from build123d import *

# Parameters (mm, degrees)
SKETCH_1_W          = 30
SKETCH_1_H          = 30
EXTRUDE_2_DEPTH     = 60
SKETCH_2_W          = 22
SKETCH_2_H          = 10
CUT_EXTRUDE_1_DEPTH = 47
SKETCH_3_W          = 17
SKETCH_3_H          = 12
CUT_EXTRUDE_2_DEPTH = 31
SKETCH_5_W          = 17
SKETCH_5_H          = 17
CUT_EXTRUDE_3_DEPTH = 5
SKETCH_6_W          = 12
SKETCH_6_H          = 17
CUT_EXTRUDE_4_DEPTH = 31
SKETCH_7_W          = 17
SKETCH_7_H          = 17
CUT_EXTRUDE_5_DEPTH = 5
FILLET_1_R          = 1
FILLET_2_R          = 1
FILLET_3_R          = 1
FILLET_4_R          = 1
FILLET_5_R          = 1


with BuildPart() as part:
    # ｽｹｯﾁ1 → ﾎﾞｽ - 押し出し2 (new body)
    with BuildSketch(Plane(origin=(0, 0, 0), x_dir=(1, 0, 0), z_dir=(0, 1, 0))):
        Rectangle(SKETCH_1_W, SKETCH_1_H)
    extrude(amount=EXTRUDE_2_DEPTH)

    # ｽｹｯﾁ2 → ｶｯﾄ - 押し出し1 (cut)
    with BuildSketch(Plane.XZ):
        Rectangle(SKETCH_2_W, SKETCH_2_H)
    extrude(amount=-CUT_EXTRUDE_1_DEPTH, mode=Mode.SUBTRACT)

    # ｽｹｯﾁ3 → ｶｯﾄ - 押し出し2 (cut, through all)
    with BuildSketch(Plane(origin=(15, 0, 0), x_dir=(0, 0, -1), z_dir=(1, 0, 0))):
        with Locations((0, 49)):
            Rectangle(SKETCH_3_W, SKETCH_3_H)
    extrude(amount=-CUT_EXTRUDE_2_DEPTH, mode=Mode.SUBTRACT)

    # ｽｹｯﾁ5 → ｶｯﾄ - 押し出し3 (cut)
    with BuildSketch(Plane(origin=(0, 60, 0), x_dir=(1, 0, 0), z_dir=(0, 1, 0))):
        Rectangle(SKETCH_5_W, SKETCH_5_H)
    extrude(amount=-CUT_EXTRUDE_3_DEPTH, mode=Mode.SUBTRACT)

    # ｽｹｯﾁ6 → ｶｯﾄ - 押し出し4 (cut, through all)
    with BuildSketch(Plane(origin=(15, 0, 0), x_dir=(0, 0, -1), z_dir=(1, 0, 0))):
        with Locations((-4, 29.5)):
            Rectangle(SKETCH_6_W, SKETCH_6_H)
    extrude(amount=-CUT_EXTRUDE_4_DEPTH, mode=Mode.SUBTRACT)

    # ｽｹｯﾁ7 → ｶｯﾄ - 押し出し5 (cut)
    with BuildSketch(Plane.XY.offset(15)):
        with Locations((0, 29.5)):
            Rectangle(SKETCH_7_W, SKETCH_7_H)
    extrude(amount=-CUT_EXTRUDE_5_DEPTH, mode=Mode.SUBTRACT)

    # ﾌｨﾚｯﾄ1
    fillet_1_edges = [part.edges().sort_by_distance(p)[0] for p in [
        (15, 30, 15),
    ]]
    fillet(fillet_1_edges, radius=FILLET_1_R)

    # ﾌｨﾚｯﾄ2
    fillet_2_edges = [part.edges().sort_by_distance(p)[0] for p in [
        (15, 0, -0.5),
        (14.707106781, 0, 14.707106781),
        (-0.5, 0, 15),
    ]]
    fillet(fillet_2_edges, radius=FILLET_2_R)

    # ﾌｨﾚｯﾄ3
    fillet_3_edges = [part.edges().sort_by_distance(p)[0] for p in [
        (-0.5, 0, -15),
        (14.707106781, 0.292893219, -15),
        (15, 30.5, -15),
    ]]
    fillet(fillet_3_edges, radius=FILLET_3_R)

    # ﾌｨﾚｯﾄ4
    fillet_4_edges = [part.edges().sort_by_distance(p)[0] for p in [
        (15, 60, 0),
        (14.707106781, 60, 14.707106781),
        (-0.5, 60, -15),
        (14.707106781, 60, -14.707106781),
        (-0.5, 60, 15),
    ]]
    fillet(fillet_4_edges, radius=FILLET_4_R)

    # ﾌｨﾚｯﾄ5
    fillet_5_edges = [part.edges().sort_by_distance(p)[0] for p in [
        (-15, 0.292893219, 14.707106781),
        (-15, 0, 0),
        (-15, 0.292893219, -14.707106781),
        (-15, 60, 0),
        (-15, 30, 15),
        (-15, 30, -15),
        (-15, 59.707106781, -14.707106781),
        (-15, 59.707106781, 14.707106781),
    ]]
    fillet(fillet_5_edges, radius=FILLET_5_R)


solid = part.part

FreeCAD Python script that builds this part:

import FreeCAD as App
import Part
import Sketcher
from FreeCAD import Vector
Q = App.Units.Quantity


def edges_at(feature, points):
    """Names of the edges that pass closest to the given points."""
    edges = feature.Shape.Edges
    near = lambda p: min(range(len(edges)), key=lambda i: edges[i].distToShape(Part.Vertex(*p))[0])
    return sorted({f"Edge{near(p) + 1}" for p in points})

doc = App.newDocument("Part")
body = doc.addObject("PartDesign::Body", "Body")

sketch1 = body.newObject("Sketcher::SketchObject", "Sketch")
sketch1.AttachmentSupport = (doc.getObject("XZ_Plane"), [""])
sketch1.MapMode = "FlatFace"
sketch1.addGeometry([
    Part.LineSegment(Vector(-15, -15, 0), Vector(-15, 15, 0)),
    Part.LineSegment(Vector(-15, 15, 0), Vector(15, 15, 0)),
    Part.LineSegment(Vector(15, 15, 0), Vector(15, -15, 0)),
    Part.LineSegment(Vector(15, -15, 0), Vector(-15, -15, 0)),
], False)
sketch1.addConstraint([
    Sketcher.Constraint("Coincident", 0, 2, 1, 1),
    Sketcher.Constraint("Coincident", 1, 2, 2, 1),
    Sketcher.Constraint("Coincident", 2, 2, 3, 1),
    Sketcher.Constraint("Coincident", 3, 2, 0, 1),
    Sketcher.Constraint("Vertical", 0),
    Sketcher.Constraint("Horizontal", 1),
    Sketcher.Constraint("Vertical", 2),
    Sketcher.Constraint("Horizontal", 3),
    Sketcher.Constraint("Symmetric", 0, 2, 2, 2, -1, 1),
    Sketcher.Constraint("Equal", 3, 0),
    Sketcher.Constraint("DistanceX", 1, 1, 1, 2, Q("30 mm")),
])
pad1 = body.newObject("PartDesign::Pad", "Pad")
pad1.Profile = sketch1
pad1.Length = 60
pad1.Reversed = True

sketch2 = body.newObject("Sketcher::SketchObject", "Sketch001")
sketch2.AttachmentSupport = (doc.getObject("XZ_Plane"), [""])
sketch2.MapMode = "FlatFace"
sketch2.addGeometry([
    Part.LineSegment(Vector(-11, 5, 0), Vector(-11, -5, 0)),
    Part.LineSegment(Vector(-11, -5, 0), Vector(11, -5, 0)),
    Part.LineSegment(Vector(11, -5, 0), Vector(11, 5, 0)),
    Part.LineSegment(Vector(11, 5, 0), Vector(-11, 5, 0)),
], False)
sketch2.addConstraint([
    Sketcher.Constraint("Coincident", 0, 2, 1, 1),
    Sketcher.Constraint("Coincident", 1, 2, 2, 1),
    Sketcher.Constraint("Coincident", 2, 2, 3, 1),
    Sketcher.Constraint("Coincident", 3, 2, 0, 1),
    Sketcher.Constraint("Vertical", 0),
    Sketcher.Constraint("Horizontal", 1),
    Sketcher.Constraint("Vertical", 2),
    Sketcher.Constraint("Horizontal", 3),
    Sketcher.Constraint("Symmetric", 0, 2, 2, 2, -1, 1),
    Sketcher.Constraint("DistanceX", 1, 1, 1, 2, Q("22 mm")),
    Sketcher.Constraint("DistanceY", 0, 2, 0, 1, Q("10 mm")),
])
pocket1 = body.newObject("PartDesign::Pocket", "Pocket")
pocket1.Profile = sketch2
pocket1.Length = 47

sketch3 = body.newObject("Sketcher::SketchObject", "Sketch002")
sketch3.AttachmentSupport = (doc.getObject("YZ_Plane"), [""])
sketch3.MapMode = "FlatFace"
sketch3.AttachmentOffset = App.Placement(Vector(0, 0, 15), App.Rotation())
sketch3.addGeometry([
    Part.LineSegment(Vector(55, 8, 0), Vector(43, 8, 0)),
    Part.LineSegment(Vector(43, 8, 0), Vector(43, -8, 0)),
    Part.LineSegment(Vector(43, -8, 0), Vector(55, -8, 0)),
    Part.LineSegment(Vector(55, -8, 0), Vector(55, 8, 0)),
], False)
sketch3.addConstraint([
    Sketcher.Constraint("Coincident", 0, 2, 1, 1),
    Sketcher.Constraint("Coincident", 1, 2, 2, 1),
    Sketcher.Constraint("Coincident", 2, 2, 3, 1),
    Sketcher.Constraint("Coincident", 3, 2, 0, 1),
    Sketcher.Constraint("Horizontal", 0),
    Sketcher.Constraint("Vertical", 1),
    Sketcher.Constraint("Horizontal", 2),
    Sketcher.Constraint("Vertical", 3),
    Sketcher.Constraint("DistanceX", 0, 2, 0, 1, Q("12 mm")),
    Sketcher.Constraint("DistanceY", 1, 2, 1, 1, Q("17 mm")),
    Sketcher.Constraint("DistanceX", -1, 1, 0, 2, Q("43 mm")),
    Sketcher.Constraint("DistanceY", -1, 1, 0, 2, Q("8.5 mm")),
])
pocket2 = body.newObject("PartDesign::Pocket", "Pocket001")
pocket2.Profile = sketch3
pocket2.Type = "ThroughAll"

sketch4 = body.newObject("Sketcher::SketchObject", "Sketch003")
sketch4.AttachmentSupport = (doc.getObject("XZ_Plane"), [""])
sketch4.MapMode = "FlatFace"
sketch4.AttachmentOffset = App.Placement(Vector(0, 0, -60), App.Rotation())
sketch4.addGeometry([
    Part.LineSegment(Vector(-8, -8, 0), Vector(-8, 8, 0)),
    Part.LineSegment(Vector(-8, 8, 0), Vector(8, 8, 0)),
    Part.LineSegment(Vector(8, 8, 0), Vector(8, -8, 0)),
    Part.LineSegment(Vector(8, -8, 0), Vector(-8, -8, 0)),
], False)
sketch4.addConstraint([
    Sketcher.Constraint("Coincident", 0, 2, 1, 1),
    Sketcher.Constraint("Coincident", 1, 2, 2, 1),
    Sketcher.Constraint("Coincident", 2, 2, 3, 1),
    Sketcher.Constraint("Coincident", 3, 2, 0, 1),
    Sketcher.Constraint("Vertical", 0),
    Sketcher.Constraint("Horizontal", 1),
    Sketcher.Constraint("Vertical", 2),
    Sketcher.Constraint("Horizontal", 3),
    Sketcher.Constraint("Symmetric", 0, 2, 2, 2, -1, 1),
    Sketcher.Constraint("Equal", 3, 0),
    Sketcher.Constraint("DistanceX", 1, 1, 1, 2, Q("17 mm")),
])
pocket3 = body.newObject("PartDesign::Pocket", "Pocket002")
pocket3.Profile = sketch4
pocket3.Length = 5
pocket3.Reversed = True

sketch5 = body.newObject("Sketcher::SketchObject", "Sketch004")
sketch5.AttachmentSupport = (doc.getObject("YZ_Plane"), [""])
sketch5.MapMode = "FlatFace"
sketch5.AttachmentOffset = App.Placement(Vector(0, 0, 15), App.Rotation())
sketch5.addGeometry([
    Part.LineSegment(Vector(38, 10, 0), Vector(21, 10, 0)),
    Part.LineSegment(Vector(21, 10, 0), Vector(21, -2, 0)),
    Part.LineSegment(Vector(21, -2, 0), Vector(38, -2, 0)),
    Part.LineSegment(Vector(38, -2, 0), Vector(38, 10, 0)),
], False)
sketch5.addConstraint([
    Sketcher.Constraint("Coincident", 0, 2, 1, 1),
    Sketcher.Constraint("Coincident", 1, 2, 2, 1),
    Sketcher.Constraint("Coincident", 2, 2, 3, 1),
    Sketcher.Constraint("Coincident", 3, 2, 0, 1),
    Sketcher.Constraint("Horizontal", 0),
    Sketcher.Constraint("Vertical", 1),
    Sketcher.Constraint("Horizontal", 2),
    Sketcher.Constraint("Vertical", 3),
    Sketcher.Constraint("DistanceX", 0, 2, 0, 1, Q("17 mm")),
    Sketcher.Constraint("DistanceY", 1, 2, 1, 1, Q("12 mm")),
    Sketcher.Constraint("DistanceX", -1, 1, 0, 2, Q("21 mm")),
    Sketcher.Constraint("DistanceY", -1, 1, 0, 2, Q("10 mm")),
])
pocket4 = body.newObject("PartDesign::Pocket", "Pocket003")
pocket4.Profile = sketch5
pocket4.Type = "ThroughAll"

sketch6 = body.newObject("Sketcher::SketchObject", "Sketch005")
sketch6.AttachmentSupport = (doc.getObject("XY_Plane"), [""])
sketch6.MapMode = "FlatFace"
sketch6.AttachmentOffset = App.Placement(Vector(0, 0, 15), App.Rotation())
sketch6.addGeometry([
    Part.LineSegment(Vector(-8, 38, 0), Vector(-8, 21, 0)),
    Part.LineSegment(Vector(-8, 21, 0), Vector(8, 21, 0)),
    Part.LineSegment(Vector(8, 21, 0), Vector(8, 38, 0)),
    Part.LineSegment(Vector(8, 38, 0), Vector(-8, 38, 0)),
], False)
sketch6.addConstraint([
    Sketcher.Constraint("Coincident", 0, 2, 1, 1),
    Sketcher.Constraint("Coincident", 1, 2, 2, 1),
    Sketcher.Constraint("Coincident", 2, 2, 3, 1),
    Sketcher.Constraint("Coincident", 3, 2, 0, 1),
    Sketcher.Constraint("Vertical", 0),
    Sketcher.Constraint("Horizontal", 1),
    Sketcher.Constraint("Vertical", 2),
    Sketcher.Constraint("Horizontal", 3),
    Sketcher.Constraint("Equal", 3, 0),
    Sketcher.Constraint("DistanceX", 1, 1, 1, 2, Q("17 mm")),
    Sketcher.Constraint("DistanceY", -1, 1, 0, 2, Q("21 mm")),
    Sketcher.Constraint("DistanceX", 0, 2, -1, 1, Q("8.5 mm")),
])
pocket5 = body.newObject("PartDesign::Pocket", "Pocket004")
pocket5.Profile = sketch6
pocket5.Length = 5
doc.recompute()

fillet = body.newObject("PartDesign::Fillet", "Fillet")
fillet.Base = (pocket5, edges_at(pocket5, [(15, 30, 15)]))
fillet.Radius = 1
doc.recompute()

fillet2 = body.newObject("PartDesign::Fillet", "Fillet001")
fillet2.Base = (fillet, edges_at(fillet, [(15, 0, -0.5), (14.707, 0, 14.707), (-0.5, 0, 15)]))
fillet2.Radius = 1
doc.recompute()

fillet3 = body.newObject("PartDesign::Fillet", "Fillet002")
fillet3.Base = (fillet2, edges_at(fillet2, [(-0.5, 0, -15), (14.707, 0.293, -15), (15, 30.5, -15)]))
fillet3.Radius = 1
doc.recompute()

fillet4 = body.newObject("PartDesign::Fillet", "Fillet003")
fillet4.Base = (fillet3, edges_at(fillet3, [
    (15, 60, 0),
    (14.707, 60, 14.707),
    (-0.5, 60, -15),
    (14.707, 60, -14.707),
    (-0.5, 60, 15),
]))
fillet4.Radius = 1
doc.recompute()

fillet5 = body.newObject("PartDesign::Fillet", "Fillet004")
fillet5.Base = (fillet4, edges_at(fillet4, [
    (-15, 0.293, 14.707),
    (-15, 0, 0),
    (-15, 0.293, -14.707),
    (-15, 60, 0),
    (-15, 30, 15),
    (-15, 30, -15),
    (-15, 59.707, -14.707),
    (-15, 59.707, 14.707),
]))
fillet5.Radius = 1

doc.recompute()
